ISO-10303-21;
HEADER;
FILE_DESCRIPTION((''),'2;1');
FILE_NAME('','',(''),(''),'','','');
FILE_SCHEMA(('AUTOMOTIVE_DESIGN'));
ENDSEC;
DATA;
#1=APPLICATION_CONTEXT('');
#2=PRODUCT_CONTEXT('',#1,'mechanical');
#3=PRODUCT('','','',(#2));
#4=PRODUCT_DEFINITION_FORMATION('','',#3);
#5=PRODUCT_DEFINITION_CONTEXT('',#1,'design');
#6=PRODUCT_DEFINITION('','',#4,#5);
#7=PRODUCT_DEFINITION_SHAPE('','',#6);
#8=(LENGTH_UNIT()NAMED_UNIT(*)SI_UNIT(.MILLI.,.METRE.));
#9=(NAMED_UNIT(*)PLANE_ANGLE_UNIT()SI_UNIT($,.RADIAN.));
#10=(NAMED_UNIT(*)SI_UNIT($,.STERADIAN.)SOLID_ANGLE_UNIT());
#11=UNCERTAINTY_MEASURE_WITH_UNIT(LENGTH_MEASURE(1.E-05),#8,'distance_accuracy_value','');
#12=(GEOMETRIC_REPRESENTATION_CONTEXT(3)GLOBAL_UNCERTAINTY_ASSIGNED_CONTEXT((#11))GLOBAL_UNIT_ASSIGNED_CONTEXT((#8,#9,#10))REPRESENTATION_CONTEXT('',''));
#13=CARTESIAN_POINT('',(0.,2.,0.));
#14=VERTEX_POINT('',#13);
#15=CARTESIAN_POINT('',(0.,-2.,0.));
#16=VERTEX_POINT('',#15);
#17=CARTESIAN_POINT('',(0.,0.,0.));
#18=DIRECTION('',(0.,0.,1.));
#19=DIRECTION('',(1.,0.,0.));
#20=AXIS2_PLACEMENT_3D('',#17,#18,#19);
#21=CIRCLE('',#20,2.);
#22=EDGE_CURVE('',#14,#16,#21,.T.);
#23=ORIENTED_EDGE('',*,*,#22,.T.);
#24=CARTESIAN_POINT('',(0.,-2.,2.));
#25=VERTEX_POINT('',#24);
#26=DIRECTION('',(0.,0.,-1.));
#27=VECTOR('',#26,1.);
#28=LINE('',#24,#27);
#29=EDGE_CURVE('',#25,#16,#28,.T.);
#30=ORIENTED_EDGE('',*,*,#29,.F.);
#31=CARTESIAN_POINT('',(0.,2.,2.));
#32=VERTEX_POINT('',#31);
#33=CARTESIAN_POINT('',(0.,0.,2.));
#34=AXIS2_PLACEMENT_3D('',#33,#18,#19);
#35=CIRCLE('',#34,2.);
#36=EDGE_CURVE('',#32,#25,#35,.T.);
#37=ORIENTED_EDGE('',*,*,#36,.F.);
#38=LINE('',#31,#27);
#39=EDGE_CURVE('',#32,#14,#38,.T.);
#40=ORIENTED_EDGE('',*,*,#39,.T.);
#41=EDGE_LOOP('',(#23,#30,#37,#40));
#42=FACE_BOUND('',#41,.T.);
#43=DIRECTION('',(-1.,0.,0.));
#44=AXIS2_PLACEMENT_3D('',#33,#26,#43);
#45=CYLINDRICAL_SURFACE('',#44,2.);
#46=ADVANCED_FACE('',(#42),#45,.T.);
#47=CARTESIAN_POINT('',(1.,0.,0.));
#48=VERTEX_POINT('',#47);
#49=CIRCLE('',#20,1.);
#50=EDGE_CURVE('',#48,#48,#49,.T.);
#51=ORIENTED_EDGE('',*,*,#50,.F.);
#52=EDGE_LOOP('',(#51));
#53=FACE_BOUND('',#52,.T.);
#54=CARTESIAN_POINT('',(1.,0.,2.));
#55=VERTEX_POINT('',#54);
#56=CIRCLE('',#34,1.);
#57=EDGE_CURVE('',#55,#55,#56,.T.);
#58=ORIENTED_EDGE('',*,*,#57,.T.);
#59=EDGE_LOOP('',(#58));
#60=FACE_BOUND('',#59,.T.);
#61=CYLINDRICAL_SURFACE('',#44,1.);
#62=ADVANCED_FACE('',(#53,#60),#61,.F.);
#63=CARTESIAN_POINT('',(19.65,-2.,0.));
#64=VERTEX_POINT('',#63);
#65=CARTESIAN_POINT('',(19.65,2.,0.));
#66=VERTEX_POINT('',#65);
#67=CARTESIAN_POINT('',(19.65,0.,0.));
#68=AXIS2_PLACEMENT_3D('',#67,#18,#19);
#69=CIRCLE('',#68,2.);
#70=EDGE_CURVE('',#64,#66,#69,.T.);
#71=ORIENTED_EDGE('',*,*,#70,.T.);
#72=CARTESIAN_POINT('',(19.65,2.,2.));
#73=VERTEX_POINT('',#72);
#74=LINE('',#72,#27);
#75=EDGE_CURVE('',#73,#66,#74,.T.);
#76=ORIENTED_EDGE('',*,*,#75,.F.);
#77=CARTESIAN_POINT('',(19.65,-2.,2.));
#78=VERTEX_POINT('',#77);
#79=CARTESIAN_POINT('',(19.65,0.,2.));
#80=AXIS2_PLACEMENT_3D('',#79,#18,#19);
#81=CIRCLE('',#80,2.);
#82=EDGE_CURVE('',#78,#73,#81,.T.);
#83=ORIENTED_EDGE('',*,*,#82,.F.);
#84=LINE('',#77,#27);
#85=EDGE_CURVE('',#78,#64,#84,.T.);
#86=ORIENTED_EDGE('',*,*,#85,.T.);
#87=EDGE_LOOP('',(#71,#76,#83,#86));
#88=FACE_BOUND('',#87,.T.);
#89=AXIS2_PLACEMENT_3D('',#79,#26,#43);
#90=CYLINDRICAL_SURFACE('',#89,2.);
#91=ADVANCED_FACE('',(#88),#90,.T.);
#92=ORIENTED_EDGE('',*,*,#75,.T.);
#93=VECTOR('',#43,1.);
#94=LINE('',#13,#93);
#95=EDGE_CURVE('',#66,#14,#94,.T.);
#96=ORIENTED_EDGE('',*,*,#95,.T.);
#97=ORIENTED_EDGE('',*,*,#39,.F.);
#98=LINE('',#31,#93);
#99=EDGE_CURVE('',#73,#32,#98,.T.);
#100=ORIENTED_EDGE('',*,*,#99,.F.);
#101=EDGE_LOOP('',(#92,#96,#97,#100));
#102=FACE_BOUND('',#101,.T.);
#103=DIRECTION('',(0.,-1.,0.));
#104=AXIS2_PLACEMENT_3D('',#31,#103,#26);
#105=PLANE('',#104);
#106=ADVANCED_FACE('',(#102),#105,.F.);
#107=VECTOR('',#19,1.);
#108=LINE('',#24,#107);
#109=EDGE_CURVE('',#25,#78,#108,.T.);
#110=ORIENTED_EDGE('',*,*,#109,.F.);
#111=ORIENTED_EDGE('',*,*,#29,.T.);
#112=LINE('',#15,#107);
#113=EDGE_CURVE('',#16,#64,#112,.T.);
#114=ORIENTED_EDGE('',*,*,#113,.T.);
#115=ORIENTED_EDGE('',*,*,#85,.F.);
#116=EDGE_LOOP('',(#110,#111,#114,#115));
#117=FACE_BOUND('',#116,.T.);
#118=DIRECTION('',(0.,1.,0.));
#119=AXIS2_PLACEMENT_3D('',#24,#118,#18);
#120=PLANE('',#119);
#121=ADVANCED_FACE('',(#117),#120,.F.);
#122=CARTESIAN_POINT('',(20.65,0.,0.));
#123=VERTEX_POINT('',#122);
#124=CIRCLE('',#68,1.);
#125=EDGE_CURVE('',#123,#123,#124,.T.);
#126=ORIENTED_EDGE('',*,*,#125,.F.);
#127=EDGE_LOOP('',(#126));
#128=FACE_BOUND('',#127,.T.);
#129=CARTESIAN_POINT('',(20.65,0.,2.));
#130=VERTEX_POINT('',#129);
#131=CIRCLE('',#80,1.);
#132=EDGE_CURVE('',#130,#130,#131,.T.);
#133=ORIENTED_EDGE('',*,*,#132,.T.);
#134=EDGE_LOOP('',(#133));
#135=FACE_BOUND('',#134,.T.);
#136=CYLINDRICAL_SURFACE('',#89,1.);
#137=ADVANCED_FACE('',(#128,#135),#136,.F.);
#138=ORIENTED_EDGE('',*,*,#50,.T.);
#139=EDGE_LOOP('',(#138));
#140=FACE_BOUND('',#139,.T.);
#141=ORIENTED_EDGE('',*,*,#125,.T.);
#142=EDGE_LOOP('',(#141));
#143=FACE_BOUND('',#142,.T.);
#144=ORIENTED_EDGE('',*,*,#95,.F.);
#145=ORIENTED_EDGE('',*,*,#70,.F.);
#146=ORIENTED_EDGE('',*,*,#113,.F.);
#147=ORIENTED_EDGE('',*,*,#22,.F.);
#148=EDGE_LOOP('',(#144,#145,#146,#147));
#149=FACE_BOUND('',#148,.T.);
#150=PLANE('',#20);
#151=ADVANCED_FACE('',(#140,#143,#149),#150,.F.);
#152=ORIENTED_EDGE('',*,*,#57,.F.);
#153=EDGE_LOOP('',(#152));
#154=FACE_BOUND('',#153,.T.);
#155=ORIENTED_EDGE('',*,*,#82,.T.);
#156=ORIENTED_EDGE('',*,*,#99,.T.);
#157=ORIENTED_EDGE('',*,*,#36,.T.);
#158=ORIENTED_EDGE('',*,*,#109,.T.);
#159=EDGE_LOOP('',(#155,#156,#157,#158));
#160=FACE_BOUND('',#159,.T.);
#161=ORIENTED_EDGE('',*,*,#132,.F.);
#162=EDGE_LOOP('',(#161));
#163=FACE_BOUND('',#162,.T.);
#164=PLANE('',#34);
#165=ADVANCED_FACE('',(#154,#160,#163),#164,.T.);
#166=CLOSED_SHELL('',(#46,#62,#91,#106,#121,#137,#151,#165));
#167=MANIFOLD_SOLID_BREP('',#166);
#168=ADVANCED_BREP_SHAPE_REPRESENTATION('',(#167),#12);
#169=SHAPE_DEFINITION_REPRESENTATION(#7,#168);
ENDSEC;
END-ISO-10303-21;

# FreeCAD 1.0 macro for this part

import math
import FreeCAD as App
import Part
import Sketcher
Q = App.Units.Quantity

doc = App.newDocument("Part")
body = doc.addObject("PartDesign::Body", "Body")

# Sketch on XY plane
sketch1 = body.newObject("Sketcher::SketchObject", "Sketch")
sketch1.AttachmentSupport = (doc.getObject("XY_Plane"), [""])
sketch1.MapMode = "FlatFace"
sketch1.addGeometry(Part.LineSegment(App.Vector(19.6, 2, 0), App.Vector(0, 2, 0)), False)
sketch1.addGeometry(Part.ArcOfCircle(Part.Circle(App.Vector(0, 0, 0), App.Vector(0, 0, 1), 2), math.radians(90), math.radians(270)), False)
sketch1.addGeometry(Part.LineSegment(App.Vector(0, -2, 0), App.Vector(19.6, -2, 0)), False)
sketch1.addGeometry(Part.ArcOfCircle(Part.Circle(App.Vector(19.6, 0, 0), App.Vector(0, 0, 1), 2), math.radians(-90), math.radians(90)), False)
sketch1.addGeometry(Part.Circle(App.Vector(19.6, 0, 0), App.Vector(0, 0, 1), 1), False)
sketch1.addGeometry(Part.Circle(App.Vector(0, 0, 0), App.Vector(0, 0, 1), 1), False)
sketch1.addConstraint(Sketcher.Constraint("Tangent", 0, 2, 1, 1))
sketch1.addConstraint(Sketcher.Constraint("Tangent", 1, 2, 2, 1))
sketch1.addConstraint(Sketcher.Constraint("Tangent", 2, 2, 3, 1))
sketch1.addConstraint(Sketcher.Constraint("Tangent", 3, 2, 0, 1))
sketch1.addConstraint(Sketcher.Constraint("Horizontal", 0))
sketch1.addConstraint(Sketcher.Constraint("Horizontal", 2))
sketch1.addConstraint(Sketcher.Constraint("Coincident", 1, 3, -1, 1))
sketch1.addConstraint(Sketcher.Constraint("Coincident", 5, 3, -1, 1))
sketch1.addConstraint(Sketcher.Constraint("Coincident", 4, 3, 3, 3))
sketch1.addConstraint(Sketcher.Constraint("Equal", 4, 5))
sketch1.addConstraint(Sketcher.Constraint("Diameter", 4, Q("2 mm")))
sketch1.addConstraint(Sketcher.Constraint("Radius", 1, Q("2 mm")))
sketch1.addConstraint(Sketcher.Constraint("DistanceX", 0, 2, 0, 1, Q("19.65 mm")))
pad1 = body.newObject("PartDesign::Pad", "Pad")
pad1.Profile = sketch1
pad1.Length = 2

doc.recompute()
